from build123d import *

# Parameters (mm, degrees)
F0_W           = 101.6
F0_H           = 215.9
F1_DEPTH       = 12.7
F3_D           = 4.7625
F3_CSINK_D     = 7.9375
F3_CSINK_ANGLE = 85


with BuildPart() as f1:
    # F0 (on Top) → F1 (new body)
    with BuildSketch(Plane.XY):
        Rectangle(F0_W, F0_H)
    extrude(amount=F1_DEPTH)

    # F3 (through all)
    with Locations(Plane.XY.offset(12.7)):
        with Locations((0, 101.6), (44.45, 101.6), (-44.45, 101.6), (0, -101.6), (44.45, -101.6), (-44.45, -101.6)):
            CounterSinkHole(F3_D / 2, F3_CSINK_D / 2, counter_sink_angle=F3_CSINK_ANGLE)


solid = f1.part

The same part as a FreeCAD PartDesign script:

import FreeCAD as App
import Part
import Sketcher

V = App.Vector
Q = App.Units.Quantity


def add_polygon(sketch, points):
    """Adds a closed chain of lines whose ends are joined by coincident constraints."""
    first, n = sketch.GeometryCount, len(points)
    for a, b in zip(points, points[1:] + points[:1]):
        sketch.addGeometry(Part.LineSegment(App.Vector(*a, 0), App.Vector(*b, 0)), False)
    for i in range(n):
        sketch.addConstraint(Sketcher.Constraint("Coincident", first + i, 2, first + (i + 1) % n, 1))

doc = App.newDocument("Part")
params = doc.addObject("Spreadsheet::Sheet", "Params")
for row, (alias, value) in enumerate([
    ("sketch1_width", "4 in"),
    ("sketch1_height", "8.5 in"),
    ("pad1_length", "0.5 in"),
    ("sketch2_diameter", "0.1875 in"),
    ("hole_diameter", "0.1875 in"),
    ("hole_csink_diameter", "0.3125 in"),
], start=1):
    params.set(f"A{row}", alias)
    params.set(f"B{row}", "=" + value)
    params.setAlias(f"B{row}", alias)

body = doc.addObject("PartDesign::Body", "Body")

# Sketch on XY plane
sketch1 = doc.addObject("Sketcher::SketchObject", "Sketch")
body.addObject(sketch1)
sketch1.AttachmentSupport = (doc.XY_Plane, [""])
sketch1.MapMode = "FlatFace"
add_polygon(sketch1, [(-51, 108), (-51, -108), (51, -108), (51, 108)])  # lines 0-3
sketch1.addConstraint([
    Sketcher.Constraint("Vertical", 0),
    Sketcher.Constraint("Horizontal", 1),
    Sketcher.Constraint("Vertical", 2),
    Sketcher.Constraint("Horizontal", 3),
    Sketcher.Constraint("Symmetric", 0, 2, 2, 2, -1, 1),
    Sketcher.Constraint("DistanceX", 1, 1, 1, 2, Q("4 in")),
    Sketcher.Constraint("DistanceY", 0, 2, 0, 1, Q("8.5 in")),
])
sketch1.setExpression("Constraints[9]", "Params.sketch1_width")
sketch1.setExpression("Constraints[10]", "Params.sketch1_height")
pad1 = doc.addObject("PartDesign::Pad", "Pad")
body.addObject(pad1)
pad1.Profile = sketch1
pad1.setExpression("Length", "Params.pad1_length")

# Sketch on XY plane
sketch2 = doc.addObject("Sketcher::SketchObject", "Sketch001")
body.addObject(sketch2)
sketch2.AttachmentSupport = (doc.XY_Plane, [""])
sketch2.MapMode = "FlatFace"
sketch2.AttachmentOffset = App.Placement(V(0, 0, 0.5 * 25.4), App.Rotation())
sketch2.addGeometry([
    Part.Circle(V(0, 101.6, 0), V(0, 0, 1), 2.4),  # 0
    Part.Circle(V(44.5, 101.6, 0), V(0, 0, 1), 2.4),  # 1
    Part.Circle(V(-44.5, 101.6, 0), V(0, 0, 1), 2.4),  # 2
    Part.Circle(V(0, -101.6, 0), V(0, 0, 1), 2.4),  # 3
    Part.Circle(V(44.5, -101.6, 0), V(0, 0, 1), 2.4),  # 4
    Part.Circle(V(-44.5, -101.6, 0), V(0, 0, 1), 2.4),  # 5
], False)
sketch2.addConstraint([
    Sketcher.Constraint("Equal", 0, 1),
    Sketcher.Constraint("Equal", 1, 2),
    Sketcher.Constraint("Equal", 2, 3),
    Sketcher.Constraint("Equal", 3, 4),
    Sketcher.Constraint("Equal", 4, 5),
    Sketcher.Constraint("Symmetric", 0, 3, 3, 3, -1, 1),
    Sketcher.Constraint("Symmetric", 2, 3, 4, 3, -1, 1),
    Sketcher.Constraint("Symmetric", 1, 3, 5, 3, -1, 1),
    Sketcher.Constraint("Symmetric", 1, 3, 2, 3, -2),
    Sketcher.Constraint("PointOnObject", 0, 3, -2),
    Sketcher.Constraint("Horizontal", 0, 3, 1, 3),
    Sketcher.Constraint("Diameter", 0, Q("0.1875 in")),
    Sketcher.Constraint("DistanceY", -1, 1, 0, 3, Q("4 in")),
    Sketcher.Constraint("DistanceX", 2, 3, 1, 3, Q("3.5 in")),
])
sketch2.setExpression("Constraints[11]", "Params.sketch2_diameter")
doc.recompute()
hole = doc.addObject("PartDesign::Hole", "Hole")
body.addObject(hole)
hole.Profile = sketch2
hole.ThreadType = "None"
hole.setExpression("Diameter", "Params.hole_diameter")
hole.DepthType = "ThroughAll"
hole.HoleCutType = "Countersink"
hole.setExpression("HoleCutDiameter", "Params.hole_csink_diameter")
hole.HoleCutCountersinkAngle = 85

doc.recompute()
